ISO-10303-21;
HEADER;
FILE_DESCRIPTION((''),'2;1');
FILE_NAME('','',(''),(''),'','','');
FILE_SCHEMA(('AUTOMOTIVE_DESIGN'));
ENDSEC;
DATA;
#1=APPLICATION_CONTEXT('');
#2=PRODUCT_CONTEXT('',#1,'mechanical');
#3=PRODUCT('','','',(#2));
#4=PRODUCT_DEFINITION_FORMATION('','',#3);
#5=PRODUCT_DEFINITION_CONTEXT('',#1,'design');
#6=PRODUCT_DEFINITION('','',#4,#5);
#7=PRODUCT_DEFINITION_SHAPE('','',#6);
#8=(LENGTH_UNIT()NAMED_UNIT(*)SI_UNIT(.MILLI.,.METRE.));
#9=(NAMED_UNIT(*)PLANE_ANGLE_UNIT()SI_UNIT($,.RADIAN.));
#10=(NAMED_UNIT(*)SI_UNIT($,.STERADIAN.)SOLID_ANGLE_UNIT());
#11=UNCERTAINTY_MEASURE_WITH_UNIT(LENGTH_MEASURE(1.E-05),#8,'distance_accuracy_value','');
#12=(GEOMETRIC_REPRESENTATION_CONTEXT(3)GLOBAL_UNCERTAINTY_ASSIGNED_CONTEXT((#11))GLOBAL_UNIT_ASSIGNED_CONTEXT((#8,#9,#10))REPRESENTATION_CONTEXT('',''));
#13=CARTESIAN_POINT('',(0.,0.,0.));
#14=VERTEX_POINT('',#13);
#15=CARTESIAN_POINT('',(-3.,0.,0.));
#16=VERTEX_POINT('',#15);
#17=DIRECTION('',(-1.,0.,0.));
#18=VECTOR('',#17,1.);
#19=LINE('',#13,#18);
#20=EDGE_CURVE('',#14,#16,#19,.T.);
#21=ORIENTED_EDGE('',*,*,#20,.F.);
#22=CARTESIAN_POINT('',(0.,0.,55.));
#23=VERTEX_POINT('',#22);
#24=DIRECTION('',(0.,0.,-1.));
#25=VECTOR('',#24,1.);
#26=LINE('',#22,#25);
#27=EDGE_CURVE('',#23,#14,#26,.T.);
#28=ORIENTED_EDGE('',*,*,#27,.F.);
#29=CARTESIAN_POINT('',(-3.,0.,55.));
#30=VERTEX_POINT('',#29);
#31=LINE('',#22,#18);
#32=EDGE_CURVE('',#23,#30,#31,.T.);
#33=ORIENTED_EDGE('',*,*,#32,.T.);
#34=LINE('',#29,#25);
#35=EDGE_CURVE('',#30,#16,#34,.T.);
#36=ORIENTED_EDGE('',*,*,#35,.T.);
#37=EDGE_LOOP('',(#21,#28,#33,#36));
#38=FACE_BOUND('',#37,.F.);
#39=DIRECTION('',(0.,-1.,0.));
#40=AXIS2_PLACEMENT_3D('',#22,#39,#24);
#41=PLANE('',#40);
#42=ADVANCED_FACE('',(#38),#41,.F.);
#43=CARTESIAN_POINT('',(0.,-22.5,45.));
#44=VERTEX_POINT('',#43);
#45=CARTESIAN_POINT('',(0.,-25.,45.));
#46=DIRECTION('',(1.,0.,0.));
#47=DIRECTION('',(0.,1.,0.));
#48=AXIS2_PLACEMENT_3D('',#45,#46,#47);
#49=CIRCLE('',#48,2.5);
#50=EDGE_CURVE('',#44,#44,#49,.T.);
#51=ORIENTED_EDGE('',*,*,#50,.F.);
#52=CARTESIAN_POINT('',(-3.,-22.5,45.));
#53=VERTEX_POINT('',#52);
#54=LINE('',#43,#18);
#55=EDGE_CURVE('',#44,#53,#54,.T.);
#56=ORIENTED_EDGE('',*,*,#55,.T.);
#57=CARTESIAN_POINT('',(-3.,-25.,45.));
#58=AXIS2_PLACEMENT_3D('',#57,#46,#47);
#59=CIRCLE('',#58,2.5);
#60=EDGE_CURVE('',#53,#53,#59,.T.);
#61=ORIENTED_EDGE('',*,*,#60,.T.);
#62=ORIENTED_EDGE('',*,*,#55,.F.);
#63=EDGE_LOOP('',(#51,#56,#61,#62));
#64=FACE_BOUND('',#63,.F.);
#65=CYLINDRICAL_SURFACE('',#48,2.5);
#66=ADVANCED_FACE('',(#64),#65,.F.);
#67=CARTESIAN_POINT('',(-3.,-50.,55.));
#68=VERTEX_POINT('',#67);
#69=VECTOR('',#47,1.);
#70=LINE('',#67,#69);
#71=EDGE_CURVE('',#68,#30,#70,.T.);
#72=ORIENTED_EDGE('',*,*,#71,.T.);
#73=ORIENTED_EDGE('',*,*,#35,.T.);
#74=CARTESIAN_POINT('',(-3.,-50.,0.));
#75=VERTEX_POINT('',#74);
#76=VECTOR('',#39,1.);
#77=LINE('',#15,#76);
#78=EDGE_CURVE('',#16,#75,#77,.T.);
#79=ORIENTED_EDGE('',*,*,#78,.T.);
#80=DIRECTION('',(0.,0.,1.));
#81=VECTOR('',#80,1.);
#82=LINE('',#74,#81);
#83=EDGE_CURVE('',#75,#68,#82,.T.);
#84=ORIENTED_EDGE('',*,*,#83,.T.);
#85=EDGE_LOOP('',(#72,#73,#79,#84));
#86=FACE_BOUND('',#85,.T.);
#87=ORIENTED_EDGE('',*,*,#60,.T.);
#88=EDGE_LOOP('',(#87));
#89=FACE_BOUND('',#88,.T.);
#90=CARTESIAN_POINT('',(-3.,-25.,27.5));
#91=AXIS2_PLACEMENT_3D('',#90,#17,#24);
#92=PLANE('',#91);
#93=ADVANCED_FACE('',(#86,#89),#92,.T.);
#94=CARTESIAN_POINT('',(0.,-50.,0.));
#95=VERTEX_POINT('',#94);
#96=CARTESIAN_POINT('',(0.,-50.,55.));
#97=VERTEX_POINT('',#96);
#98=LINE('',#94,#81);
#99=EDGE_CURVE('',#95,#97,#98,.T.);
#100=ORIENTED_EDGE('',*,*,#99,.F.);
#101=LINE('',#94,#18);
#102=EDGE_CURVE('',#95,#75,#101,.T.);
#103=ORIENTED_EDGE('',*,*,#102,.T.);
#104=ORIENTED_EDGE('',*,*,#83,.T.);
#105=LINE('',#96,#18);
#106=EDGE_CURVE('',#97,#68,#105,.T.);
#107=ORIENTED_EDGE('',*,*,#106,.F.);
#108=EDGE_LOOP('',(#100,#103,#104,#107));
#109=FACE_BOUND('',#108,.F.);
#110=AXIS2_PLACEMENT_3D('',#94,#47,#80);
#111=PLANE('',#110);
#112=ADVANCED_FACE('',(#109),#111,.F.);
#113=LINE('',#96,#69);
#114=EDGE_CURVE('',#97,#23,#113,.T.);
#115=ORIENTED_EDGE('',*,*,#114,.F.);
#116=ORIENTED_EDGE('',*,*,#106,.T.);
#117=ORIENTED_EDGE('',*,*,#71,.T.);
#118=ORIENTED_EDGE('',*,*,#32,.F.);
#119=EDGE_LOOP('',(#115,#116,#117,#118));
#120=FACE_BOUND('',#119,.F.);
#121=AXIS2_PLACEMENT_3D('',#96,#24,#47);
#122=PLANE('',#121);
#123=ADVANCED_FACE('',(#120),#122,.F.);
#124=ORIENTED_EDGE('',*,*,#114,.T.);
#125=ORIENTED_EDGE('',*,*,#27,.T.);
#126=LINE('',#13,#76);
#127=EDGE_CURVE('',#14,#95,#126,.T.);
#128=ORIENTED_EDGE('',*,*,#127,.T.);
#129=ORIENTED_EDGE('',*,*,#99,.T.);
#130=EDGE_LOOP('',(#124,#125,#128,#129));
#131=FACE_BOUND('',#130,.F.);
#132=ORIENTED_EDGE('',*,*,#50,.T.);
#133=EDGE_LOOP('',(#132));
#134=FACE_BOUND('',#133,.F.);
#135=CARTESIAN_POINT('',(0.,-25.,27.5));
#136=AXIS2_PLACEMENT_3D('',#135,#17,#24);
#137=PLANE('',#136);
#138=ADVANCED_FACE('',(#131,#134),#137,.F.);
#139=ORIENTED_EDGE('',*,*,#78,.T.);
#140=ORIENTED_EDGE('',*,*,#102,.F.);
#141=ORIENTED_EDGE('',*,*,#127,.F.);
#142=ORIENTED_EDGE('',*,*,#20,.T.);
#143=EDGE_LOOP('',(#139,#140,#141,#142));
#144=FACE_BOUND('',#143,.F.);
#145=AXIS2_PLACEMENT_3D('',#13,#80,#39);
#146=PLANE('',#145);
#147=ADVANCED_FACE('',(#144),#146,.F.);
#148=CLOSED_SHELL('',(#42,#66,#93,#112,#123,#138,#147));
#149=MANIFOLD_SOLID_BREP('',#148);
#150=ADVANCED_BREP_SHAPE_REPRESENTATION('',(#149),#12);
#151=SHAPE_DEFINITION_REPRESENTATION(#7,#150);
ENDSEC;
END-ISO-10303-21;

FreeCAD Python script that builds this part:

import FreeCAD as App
import Part
import Sketcher
from FreeCAD import Vector
Q = App.Units.Quantity

doc = App.newDocument("Part")
body = doc.addObject("PartDesign::Body", "Body")

# Sketch on YZ plane
sketch1 = body.newObject("Sketcher::SketchObject", "Sketch")
sketch1.AttachmentSupport = (doc.getObject("YZ_Plane"), [""])
sketch1.MapMode = "FlatFace"
sketch1.addGeometry(Part.LineSegment(Vector(-50, 0, 0), Vector(0, 0, 0)), False)
sketch1.addGeometry(Part.LineSegment(Vector(0, 0, 0), Vector(0, 55, 0)), False)
sketch1.addGeometry(Part.LineSegment(Vector(0, 55, 0), Vector(-50, 55, 0)), False)
sketch1.addGeometry(Part.LineSegment(Vector(-50, 55, 0), Vector(-50, 0, 0)), False)
sketch1.addGeometry(Part.Circle(Vector(-25, 45, 0), Vector(0, 0, 1), 2.5), False)
sketch1.addConstraint(Sketcher.Constraint("Coincident", 0, 2, 1, 1))
sketch1.addConstraint(Sketcher.Constraint("Coincident", 1, 2, 2, 1))
sketch1.addConstraint(Sketcher.Constraint("Coincident", 2, 2, 3, 1))
sketch1.addConstraint(Sketcher.Constraint("Coincident", 3, 2, 0, 1))
sketch1.addConstraint(Sketcher.Constraint("Horizontal", 0))
sketch1.addConstraint(Sketcher.Constraint("Vertical", 1))
sketch1.addConstraint(Sketcher.Constraint("Horizontal", 2))
sketch1.addConstraint(Sketcher.Constraint("Vertical", 3))
sketch1.addConstraint(Sketcher.Constraint("Coincident", 0, 2, -1, 1))
sketch1.addConstraint(Sketcher.Constraint("DistanceX", 0, 1, 0, 2, Q("50 mm")))
sketch1.addConstraint(Sketcher.Constraint("Diameter", 4, Q("5 mm")))
sketch1.addConstraint(Sketcher.Constraint("DistanceY", 1, 1, 1, 2, Q("55 mm")))
sketch1.addConstraint(Sketcher.Constraint("DistanceX", 4, 3, -1, 1, Q("25 mm")))
sketch1.addConstraint(Sketcher.Constraint("DistanceY", -1, 1, 4, 3, Q("45 mm")))
pad1 = body.newObject("PartDesign::Pad", "Pad")
pad1.Profile = sketch1
pad1.Length = 3
pad1.Reversed = True

doc.recompute()
